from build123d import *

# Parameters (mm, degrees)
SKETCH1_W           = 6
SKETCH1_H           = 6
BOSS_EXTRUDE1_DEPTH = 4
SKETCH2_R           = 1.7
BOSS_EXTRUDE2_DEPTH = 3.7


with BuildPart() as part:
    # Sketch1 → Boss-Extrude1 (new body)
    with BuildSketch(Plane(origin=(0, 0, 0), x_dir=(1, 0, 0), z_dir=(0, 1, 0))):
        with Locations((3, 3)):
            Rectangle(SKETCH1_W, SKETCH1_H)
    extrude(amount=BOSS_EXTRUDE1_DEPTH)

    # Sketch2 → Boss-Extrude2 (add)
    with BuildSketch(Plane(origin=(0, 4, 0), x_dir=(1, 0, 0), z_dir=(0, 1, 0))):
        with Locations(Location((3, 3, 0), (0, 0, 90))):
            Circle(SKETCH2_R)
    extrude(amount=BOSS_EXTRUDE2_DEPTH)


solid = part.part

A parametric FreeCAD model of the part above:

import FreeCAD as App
import Part
import Sketcher


def add_polygon(sketch, points):
    """Adds a closed chain of lines whose ends are joined by coincident constraints."""
    first, n = sketch.GeometryCount, len(points)
    for a, b in zip(points, points[1:] + points[:1]):
        sketch.addGeometry(Part.LineSegment(App.Vector(*a, 0), App.Vector(*b, 0)), False)
    for i in range(n):
        sketch.addConstraint(Sketcher.Constraint("Coincident", first + i, 2, first + (i + 1) % n, 1))

doc = App.newDocument("Part")
body = doc.addObject("PartDesign::Body", "Body")

# Sketch on XZ plane
sketch1 = doc.addObject("Sketcher::SketchObject", "Sketch")
body.addObject(sketch1)
sketch1.AttachmentSupport = (doc.XZ_Plane, [""])
sketch1.MapMode = "FlatFace"
add_polygon(sketch1, [(0, -6), (0, 0), (6, 0), (6, -6)])  # lines 0-3
sketch1.addConstraint(Sketcher.Constraint("Vertical", 0))
sketch1.addConstraint(Sketcher.Constraint("Horizontal", 1))
sketch1.addConstraint(Sketcher.Constraint("Vertical", 2))
sketch1.addConstraint(Sketcher.Constraint("Horizontal", 3))
sketch1.addConstraint(Sketcher.Constraint("Coincident", 0, 2, -1, 1))
sketch1.addConstraint(Sketcher.Constraint("Equal", 3, 0))
sketch1.addConstraint(Sketcher.Constraint("DistanceX", 1, 1, 1, 2, 6.0))
pad1 = doc.addObject("PartDesign::Pad", "Pad")
body.addObject(pad1)
pad1.Profile = sketch1
pad1.Length = 4
pad1.Reversed = True

# Sketch on XZ plane
sketch2 = doc.addObject("Sketcher::SketchObject", "Sketch001")
body.addObject(sketch2)
sketch2.AttachmentSupport = (doc.XZ_Plane, [""])
sketch2.MapMode = "FlatFace"
sketch2.AttachmentOffset = App.Placement(App.Vector(0, 0, -4), App.Rotation())
sketch2.addGeometry(Part.Circle(App.Vector(3, -3, 0), App.Vector(0, 0, 1), 1.7), False)
sketch2.addConstraint(Sketcher.Constraint("Diameter", 0, 3.4))
sketch2.addConstraint(Sketcher.Constraint("DistanceX", -1, 1, 0, 3, 3.0))
sketch2.addConstraint(Sketcher.Constraint("DistanceY", 0, 3, -1, 1, 3.0))
pad2 = doc.addObject("PartDesign::Pad", "Pad001")
body.addObject(pad2)
pad2.Profile = sketch2
pad2.Length = 3.7
pad2.Reversed = True

doc.recompute()
